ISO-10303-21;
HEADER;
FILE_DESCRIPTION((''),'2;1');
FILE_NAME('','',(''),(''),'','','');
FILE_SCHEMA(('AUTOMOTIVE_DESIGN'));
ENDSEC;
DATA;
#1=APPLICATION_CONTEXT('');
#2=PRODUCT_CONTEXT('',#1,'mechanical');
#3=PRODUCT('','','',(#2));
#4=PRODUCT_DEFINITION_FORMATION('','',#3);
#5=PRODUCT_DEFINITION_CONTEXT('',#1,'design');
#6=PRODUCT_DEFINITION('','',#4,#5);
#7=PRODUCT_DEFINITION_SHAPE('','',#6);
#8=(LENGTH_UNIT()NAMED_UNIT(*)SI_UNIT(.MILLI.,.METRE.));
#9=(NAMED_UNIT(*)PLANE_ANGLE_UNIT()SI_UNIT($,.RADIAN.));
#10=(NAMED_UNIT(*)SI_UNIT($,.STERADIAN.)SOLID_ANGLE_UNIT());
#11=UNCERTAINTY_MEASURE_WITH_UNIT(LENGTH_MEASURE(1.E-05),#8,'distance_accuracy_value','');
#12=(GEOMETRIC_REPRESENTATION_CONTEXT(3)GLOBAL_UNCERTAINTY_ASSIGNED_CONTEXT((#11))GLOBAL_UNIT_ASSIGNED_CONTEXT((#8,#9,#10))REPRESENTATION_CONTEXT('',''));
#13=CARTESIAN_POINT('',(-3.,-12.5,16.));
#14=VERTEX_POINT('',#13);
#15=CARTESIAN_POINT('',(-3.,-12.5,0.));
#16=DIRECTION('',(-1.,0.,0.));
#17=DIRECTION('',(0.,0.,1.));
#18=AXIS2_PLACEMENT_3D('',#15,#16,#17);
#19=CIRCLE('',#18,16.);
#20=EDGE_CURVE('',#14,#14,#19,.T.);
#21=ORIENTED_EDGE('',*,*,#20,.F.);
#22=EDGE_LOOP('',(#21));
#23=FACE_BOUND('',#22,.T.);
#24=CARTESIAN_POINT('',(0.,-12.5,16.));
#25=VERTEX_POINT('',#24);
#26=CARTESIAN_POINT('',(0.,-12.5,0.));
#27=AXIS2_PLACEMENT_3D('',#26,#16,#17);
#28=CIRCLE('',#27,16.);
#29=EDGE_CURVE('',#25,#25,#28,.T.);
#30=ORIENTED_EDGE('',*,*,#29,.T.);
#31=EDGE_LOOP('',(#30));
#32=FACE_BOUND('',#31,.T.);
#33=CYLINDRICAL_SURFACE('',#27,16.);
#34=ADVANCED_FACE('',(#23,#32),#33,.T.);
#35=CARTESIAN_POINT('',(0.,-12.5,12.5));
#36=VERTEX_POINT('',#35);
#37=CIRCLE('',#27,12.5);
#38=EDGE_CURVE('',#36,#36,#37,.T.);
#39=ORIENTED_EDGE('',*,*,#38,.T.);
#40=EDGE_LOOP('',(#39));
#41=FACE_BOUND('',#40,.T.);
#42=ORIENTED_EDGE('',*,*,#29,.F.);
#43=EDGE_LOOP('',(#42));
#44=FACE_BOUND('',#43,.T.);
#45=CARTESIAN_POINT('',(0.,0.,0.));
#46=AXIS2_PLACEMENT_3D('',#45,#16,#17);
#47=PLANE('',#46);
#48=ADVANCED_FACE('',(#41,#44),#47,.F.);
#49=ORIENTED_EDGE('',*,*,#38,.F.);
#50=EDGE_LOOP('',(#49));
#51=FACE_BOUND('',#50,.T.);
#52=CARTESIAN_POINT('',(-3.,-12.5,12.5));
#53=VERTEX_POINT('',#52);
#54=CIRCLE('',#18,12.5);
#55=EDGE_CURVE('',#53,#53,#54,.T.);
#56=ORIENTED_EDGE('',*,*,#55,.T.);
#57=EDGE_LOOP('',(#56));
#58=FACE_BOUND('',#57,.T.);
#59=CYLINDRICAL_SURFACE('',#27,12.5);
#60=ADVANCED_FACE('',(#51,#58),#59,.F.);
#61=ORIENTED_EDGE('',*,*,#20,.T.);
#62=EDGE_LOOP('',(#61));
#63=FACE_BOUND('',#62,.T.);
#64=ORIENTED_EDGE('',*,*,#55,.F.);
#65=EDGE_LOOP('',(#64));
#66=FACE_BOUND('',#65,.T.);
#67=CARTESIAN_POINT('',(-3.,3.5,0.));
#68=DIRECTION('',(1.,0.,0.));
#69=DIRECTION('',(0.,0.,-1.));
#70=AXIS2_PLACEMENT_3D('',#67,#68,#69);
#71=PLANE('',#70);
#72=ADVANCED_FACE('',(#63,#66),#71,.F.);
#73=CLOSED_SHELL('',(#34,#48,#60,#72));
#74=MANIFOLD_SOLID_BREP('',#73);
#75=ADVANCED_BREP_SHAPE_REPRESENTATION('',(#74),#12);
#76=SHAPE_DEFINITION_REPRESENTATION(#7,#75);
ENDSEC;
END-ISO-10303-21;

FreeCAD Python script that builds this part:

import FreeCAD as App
import Part
import Sketcher
from FreeCAD import Vector
Q = App.Units.Quantity


def add_polygon(sketch, points):
    """Adds a closed chain of lines whose ends are joined by coincident constraints."""
    first, n = sketch.GeometryCount, len(points)
    for a, b in zip(points, points[1:] + points[:1]):
        sketch.addGeometry(Part.LineSegment(App.Vector(*a, 0), App.Vector(*b, 0)), False)
    for i in range(n):
        sketch.addConstraint(Sketcher.Constraint("Coincident", first + i, 2, first + (i + 1) % n, 1))

doc = App.newDocument("Part")
body = doc.addObject("PartDesign::Body", "Body")

# Sketch on XY plane
sketch1 = body.newObject("Sketcher::SketchObject", "Sketch")
sketch1.AttachmentSupport = (doc.getObject("XY_Plane"), [""])
sketch1.MapMode = "FlatFace"
add_polygon(sketch1, [(-3, 3.5), (-3, 0), (0, 0), (0, 3.5)])  # lines 0-3
sketch1.addConstraint(Sketcher.Constraint("Vertical", 0))
sketch1.addConstraint(Sketcher.Constraint("Horizontal", 1))
sketch1.addConstraint(Sketcher.Constraint("Vertical", 2))
sketch1.addConstraint(Sketcher.Constraint("Horizontal", 3))
sketch1.addConstraint(Sketcher.Constraint("Coincident", 1, 2, -1, 1))
sketch1.addConstraint(Sketcher.Constraint("DistanceX", 1, 1, 1, 2, Q("3 mm")))
sketch1.addConstraint(Sketcher.Constraint("DistanceY", 0, 2, 0, 1, Q("3.5 mm")))

# Sketch on YZ plane
sketch2 = body.newObject("Sketcher::SketchObject", "Sketch001")
sketch2.AttachmentSupport = (doc.getObject("YZ_Plane"), [""])
sketch2.MapMode = "FlatFace"
sketch2.addGeometry(Part.Circle(Vector(-12.5, 0, 0), Vector(0, 0, 1), 12.5), False)
sketch2.addConstraint(Sketcher.Constraint("PointOnObject", 0, 3, -1))
sketch2.addConstraint(Sketcher.Constraint("Diameter", 0, Q("25 mm")))
sketch2.addConstraint(Sketcher.Constraint("DistanceX", 0, 3, -1, 1, Q("12.5 mm")))
doc.recompute()

additivepipe = body.newObject("PartDesign::AdditivePipe", "AdditivePipe")
additivepipe.Profile = sketch1
additivepipe.Spine = (sketch2, ["Edge1"])

doc.recompute()
